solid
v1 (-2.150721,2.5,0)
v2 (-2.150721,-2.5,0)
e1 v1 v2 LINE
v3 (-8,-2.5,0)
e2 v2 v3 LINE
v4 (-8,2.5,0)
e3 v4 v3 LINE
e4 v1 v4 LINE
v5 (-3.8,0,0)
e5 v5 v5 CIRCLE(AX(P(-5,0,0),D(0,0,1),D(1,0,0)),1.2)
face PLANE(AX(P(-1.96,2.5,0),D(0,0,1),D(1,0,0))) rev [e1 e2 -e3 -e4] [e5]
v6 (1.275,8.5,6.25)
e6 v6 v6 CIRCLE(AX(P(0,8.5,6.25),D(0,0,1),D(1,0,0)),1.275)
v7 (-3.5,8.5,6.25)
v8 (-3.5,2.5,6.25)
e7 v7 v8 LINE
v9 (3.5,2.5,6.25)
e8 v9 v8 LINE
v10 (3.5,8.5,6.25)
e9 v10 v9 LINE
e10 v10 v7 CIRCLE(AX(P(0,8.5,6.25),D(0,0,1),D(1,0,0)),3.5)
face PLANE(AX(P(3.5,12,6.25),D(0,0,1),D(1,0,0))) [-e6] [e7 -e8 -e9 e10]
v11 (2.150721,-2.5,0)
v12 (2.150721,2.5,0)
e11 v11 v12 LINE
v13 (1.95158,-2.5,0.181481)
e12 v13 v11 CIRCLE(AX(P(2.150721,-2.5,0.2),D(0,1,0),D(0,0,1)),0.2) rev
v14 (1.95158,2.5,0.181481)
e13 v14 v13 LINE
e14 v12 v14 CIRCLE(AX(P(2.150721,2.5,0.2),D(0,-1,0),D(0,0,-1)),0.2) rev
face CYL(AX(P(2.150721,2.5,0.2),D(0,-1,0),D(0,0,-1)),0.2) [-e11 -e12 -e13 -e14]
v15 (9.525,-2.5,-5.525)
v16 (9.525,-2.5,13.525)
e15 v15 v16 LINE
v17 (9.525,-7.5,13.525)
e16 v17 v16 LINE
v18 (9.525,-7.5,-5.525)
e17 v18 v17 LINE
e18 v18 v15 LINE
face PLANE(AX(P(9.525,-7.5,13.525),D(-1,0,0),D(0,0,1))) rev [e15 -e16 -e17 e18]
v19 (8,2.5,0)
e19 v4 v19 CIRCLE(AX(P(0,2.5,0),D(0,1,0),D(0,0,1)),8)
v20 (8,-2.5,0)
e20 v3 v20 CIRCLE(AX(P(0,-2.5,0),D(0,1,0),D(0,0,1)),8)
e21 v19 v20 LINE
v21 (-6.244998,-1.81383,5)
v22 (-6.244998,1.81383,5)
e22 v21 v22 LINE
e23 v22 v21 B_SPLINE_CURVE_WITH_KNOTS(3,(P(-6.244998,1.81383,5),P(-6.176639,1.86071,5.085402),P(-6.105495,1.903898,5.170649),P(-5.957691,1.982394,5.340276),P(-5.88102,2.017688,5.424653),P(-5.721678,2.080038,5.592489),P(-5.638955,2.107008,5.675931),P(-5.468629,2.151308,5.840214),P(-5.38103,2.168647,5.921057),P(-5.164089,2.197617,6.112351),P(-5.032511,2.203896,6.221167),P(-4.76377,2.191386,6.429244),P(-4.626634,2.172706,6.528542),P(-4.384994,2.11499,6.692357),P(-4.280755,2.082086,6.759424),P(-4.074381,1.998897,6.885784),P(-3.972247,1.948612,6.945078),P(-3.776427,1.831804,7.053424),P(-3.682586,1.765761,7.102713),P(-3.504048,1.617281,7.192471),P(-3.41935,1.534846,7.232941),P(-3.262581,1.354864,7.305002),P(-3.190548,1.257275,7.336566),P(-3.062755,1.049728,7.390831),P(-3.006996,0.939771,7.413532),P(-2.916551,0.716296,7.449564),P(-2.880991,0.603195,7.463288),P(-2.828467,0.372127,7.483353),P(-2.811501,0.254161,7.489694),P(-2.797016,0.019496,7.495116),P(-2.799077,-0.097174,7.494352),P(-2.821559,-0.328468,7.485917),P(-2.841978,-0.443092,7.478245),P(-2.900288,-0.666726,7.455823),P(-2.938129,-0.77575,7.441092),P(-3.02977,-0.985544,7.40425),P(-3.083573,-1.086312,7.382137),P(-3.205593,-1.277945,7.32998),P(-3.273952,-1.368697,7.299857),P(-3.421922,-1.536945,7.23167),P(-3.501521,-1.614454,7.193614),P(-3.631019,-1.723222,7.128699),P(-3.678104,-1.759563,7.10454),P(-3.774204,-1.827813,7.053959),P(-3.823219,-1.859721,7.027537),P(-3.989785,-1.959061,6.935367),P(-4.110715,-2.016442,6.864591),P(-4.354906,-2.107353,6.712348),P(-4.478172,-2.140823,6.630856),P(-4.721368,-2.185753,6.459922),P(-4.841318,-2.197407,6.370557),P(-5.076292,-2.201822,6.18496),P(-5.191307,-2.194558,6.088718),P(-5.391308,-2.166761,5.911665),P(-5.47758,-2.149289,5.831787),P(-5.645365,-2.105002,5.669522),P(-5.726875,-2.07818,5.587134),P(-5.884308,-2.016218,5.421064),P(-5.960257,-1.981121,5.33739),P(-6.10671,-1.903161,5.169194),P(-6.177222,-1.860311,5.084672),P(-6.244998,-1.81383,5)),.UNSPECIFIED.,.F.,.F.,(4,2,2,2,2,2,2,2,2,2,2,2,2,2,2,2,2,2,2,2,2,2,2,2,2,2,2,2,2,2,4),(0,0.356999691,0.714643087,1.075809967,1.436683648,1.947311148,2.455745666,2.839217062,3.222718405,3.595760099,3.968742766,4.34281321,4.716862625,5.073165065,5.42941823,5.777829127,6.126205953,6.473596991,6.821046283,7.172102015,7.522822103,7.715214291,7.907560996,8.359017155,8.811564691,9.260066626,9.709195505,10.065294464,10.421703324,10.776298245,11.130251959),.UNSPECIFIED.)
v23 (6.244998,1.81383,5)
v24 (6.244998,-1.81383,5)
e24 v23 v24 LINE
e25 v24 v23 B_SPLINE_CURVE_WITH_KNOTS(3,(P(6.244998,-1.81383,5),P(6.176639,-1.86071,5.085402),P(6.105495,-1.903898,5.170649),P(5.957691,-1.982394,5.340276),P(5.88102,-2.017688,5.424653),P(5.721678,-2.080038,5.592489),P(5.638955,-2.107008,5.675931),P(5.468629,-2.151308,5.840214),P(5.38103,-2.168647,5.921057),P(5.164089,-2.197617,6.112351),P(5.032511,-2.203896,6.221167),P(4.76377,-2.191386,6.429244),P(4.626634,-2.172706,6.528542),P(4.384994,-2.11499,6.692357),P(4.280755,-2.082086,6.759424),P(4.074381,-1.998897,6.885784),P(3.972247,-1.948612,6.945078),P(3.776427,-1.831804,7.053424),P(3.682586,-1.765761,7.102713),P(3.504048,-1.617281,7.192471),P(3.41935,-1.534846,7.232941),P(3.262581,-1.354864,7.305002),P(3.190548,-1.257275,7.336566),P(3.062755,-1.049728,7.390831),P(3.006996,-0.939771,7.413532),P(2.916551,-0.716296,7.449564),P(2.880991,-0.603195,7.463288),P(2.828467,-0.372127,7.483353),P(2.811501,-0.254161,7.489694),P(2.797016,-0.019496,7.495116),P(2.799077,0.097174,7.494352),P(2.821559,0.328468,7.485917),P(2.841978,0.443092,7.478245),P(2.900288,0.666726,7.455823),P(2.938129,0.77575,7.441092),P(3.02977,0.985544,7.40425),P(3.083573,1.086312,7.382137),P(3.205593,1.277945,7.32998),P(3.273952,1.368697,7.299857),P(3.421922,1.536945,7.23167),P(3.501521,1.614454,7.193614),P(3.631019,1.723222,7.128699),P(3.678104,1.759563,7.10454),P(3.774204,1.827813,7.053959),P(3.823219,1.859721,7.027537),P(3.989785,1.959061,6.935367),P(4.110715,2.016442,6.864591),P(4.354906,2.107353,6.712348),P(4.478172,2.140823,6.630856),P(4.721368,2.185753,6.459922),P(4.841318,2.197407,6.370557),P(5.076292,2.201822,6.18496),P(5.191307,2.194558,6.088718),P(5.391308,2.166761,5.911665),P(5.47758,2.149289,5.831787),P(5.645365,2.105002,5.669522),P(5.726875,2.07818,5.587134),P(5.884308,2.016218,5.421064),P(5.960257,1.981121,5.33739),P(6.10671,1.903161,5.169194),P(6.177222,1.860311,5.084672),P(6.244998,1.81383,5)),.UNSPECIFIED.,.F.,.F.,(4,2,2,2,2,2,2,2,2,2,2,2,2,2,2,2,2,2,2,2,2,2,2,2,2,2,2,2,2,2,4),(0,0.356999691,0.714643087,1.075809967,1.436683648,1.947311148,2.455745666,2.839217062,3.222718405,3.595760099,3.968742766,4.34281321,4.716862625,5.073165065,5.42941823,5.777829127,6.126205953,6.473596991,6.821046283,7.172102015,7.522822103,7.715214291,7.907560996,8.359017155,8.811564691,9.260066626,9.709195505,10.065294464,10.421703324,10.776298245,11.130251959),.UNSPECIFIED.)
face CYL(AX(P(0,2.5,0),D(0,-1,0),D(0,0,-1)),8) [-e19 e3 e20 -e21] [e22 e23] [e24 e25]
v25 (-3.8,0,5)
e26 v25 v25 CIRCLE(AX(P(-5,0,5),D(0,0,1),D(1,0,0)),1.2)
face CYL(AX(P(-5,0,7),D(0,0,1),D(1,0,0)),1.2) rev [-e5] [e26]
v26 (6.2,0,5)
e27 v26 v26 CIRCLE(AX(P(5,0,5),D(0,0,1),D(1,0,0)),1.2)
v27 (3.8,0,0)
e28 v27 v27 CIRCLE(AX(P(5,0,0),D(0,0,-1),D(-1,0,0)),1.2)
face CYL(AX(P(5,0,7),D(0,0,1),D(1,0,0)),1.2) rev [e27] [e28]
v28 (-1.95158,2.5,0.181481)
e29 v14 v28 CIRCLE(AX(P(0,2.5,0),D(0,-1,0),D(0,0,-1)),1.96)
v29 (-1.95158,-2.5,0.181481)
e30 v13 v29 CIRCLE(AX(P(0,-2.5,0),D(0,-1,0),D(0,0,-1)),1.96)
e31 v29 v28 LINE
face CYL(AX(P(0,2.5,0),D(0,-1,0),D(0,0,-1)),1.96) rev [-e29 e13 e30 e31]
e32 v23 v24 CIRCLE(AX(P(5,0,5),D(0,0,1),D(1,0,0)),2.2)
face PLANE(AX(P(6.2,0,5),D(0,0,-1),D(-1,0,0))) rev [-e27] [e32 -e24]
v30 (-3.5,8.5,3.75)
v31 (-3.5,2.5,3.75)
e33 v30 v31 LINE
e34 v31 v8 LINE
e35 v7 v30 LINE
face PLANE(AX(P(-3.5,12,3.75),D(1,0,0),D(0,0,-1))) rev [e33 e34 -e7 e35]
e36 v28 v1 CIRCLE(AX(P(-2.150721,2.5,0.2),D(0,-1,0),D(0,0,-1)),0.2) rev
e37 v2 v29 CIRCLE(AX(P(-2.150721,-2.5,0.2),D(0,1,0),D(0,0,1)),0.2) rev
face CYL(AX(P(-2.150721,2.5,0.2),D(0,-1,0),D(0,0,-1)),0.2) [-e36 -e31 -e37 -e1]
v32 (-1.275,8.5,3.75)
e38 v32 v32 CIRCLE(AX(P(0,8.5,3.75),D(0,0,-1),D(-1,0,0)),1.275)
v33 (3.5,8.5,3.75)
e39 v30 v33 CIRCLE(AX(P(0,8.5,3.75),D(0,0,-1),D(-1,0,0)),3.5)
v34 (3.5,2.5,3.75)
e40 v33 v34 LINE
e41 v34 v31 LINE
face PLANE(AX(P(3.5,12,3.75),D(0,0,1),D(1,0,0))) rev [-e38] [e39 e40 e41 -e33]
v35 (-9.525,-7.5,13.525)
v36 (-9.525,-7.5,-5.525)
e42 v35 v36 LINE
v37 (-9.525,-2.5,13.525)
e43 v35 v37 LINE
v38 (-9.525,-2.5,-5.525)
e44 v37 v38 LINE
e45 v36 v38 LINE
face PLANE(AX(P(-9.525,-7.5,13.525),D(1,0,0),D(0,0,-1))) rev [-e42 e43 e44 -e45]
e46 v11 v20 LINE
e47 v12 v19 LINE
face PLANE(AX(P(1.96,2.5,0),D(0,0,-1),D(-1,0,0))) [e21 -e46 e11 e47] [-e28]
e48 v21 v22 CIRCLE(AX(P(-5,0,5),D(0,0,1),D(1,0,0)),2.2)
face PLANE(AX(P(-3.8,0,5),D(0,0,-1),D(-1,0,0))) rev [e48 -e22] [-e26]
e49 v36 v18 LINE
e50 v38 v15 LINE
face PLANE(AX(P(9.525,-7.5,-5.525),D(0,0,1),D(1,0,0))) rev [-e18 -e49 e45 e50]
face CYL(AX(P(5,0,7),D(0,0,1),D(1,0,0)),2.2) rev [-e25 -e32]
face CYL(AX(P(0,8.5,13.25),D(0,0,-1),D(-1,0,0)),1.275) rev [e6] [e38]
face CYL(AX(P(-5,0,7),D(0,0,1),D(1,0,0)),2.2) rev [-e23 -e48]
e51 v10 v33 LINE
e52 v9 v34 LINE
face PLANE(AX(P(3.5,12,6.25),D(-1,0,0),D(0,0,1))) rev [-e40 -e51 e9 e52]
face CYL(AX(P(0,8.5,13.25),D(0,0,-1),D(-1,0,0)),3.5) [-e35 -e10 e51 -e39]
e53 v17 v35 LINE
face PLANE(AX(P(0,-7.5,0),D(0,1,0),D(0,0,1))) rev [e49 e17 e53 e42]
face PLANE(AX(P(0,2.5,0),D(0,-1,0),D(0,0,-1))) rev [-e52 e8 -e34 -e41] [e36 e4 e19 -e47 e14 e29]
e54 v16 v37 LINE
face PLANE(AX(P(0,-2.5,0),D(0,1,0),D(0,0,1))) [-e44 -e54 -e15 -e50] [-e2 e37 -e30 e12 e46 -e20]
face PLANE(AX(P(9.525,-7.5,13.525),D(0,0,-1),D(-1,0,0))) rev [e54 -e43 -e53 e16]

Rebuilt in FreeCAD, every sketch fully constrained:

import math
import FreeCAD as App
import Part
import Sketcher


def edges_at(feature, points):
    """Names of the edges that pass closest to the given points."""
    edges = feature.Shape.Edges
    near = lambda p: min(range(len(edges)), key=lambda i: edges[i].distToShape(Part.Vertex(*p))[0])
    return sorted({f"Edge{near(p) + 1}" for p in points})

doc = App.newDocument("Part")
body = doc.addObject("PartDesign::Body", "Body")

# Sketch on XZ plane
sketch1 = body.newObject("Sketcher::SketchObject", "Sketch")
sketch1.AttachmentSupport = (doc.getObject("XZ_Plane"), [""])
sketch1.MapMode = "FlatFace"
sketch1.addGeometry([
    Part.LineSegment(App.Vector(8, 0, 0), App.Vector(1.96, 0, 0)),
    Part.ArcOfCircle(Part.Circle(App.Vector(0, 0, 0), App.Vector(0, 0, 1), 1.96), math.radians(0), math.radians(180)),
    Part.LineSegment(App.Vector(-1.96, 0, 0), App.Vector(-8, 0, 0)),
    Part.ArcOfCircle(Part.Circle(App.Vector(0, 0, 0), App.Vector(0, 0, 1), 8), math.radians(0), math.radians(180)),
], False)
sketch1.addConstraint([
    Sketcher.Constraint("Coincident", 0, 2, 1, 1),
    Sketcher.Constraint("Coincident", 1, 2, 2, 1),
    Sketcher.Constraint("Coincident", 2, 2, 3, 2),
    Sketcher.Constraint("Coincident", 3, 1, 0, 1),
    Sketcher.Constraint("Horizontal", 0),
    Sketcher.Constraint("Horizontal", 2),
    Sketcher.Constraint("Coincident", 1, 3, -1, 1),
    Sketcher.Constraint("Coincident", 3, 3, -1, 1),
    Sketcher.Constraint("PointOnObject", 0, 2, -1),
    Sketcher.Constraint("PointOnObject", 1, 2, -1),
    Sketcher.Constraint("Radius", 3, 8.0),
    Sketcher.Constraint("Radius", 1, 1.96),
])
pad1 = body.newObject("PartDesign::Pad", "Pad")
pad1.Profile = sketch1
pad1.Length = 5
pad1.Midplane = True

# Sketch on XZ plane
sketch2 = body.newObject("Sketcher::SketchObject", "Sketch001")
sketch2.AttachmentSupport = (doc.getObject("XZ_Plane"), [""])
sketch2.MapMode = "FlatFace"
sketch2.AttachmentOffset = App.Placement(App.Vector(0, 0, -2.5), App.Rotation())
sketch2.addGeometry([
    Part.LineSegment(App.Vector(-3.5, 3.75, 0), App.Vector(-3.5, 6.25, 0)),
    Part.LineSegment(App.Vector(-3.5, 6.25, 0), App.Vector(3.5, 6.25, 0)),
    Part.LineSegment(App.Vector(3.5, 6.25, 0), App.Vector(3.5, 3.75, 0)),
    Part.LineSegment(App.Vector(3.5, 3.75, 0), App.Vector(-3.5, 3.75, 0)),
], False)
sketch2.addConstraint([
    Sketcher.Constraint("Coincident", 0, 2, 1, 1),
    Sketcher.Constraint("Coincident", 1, 2, 2, 1),
    Sketcher.Constraint("Coincident", 2, 2, 3, 1),
    Sketcher.Constraint("Coincident", 3, 2, 0, 1),
    Sketcher.Constraint("Vertical", 0),
    Sketcher.Constraint("Horizontal", 1),
    Sketcher.Constraint("Vertical", 2),
    Sketcher.Constraint("Horizontal", 3),
    Sketcher.Constraint("DistanceX", 1, 1, 1, 2, 7.0),
    Sketcher.Constraint("DistanceY", 0, 1, 0, 2, 2.5),
    Sketcher.Constraint("DistanceX", 0, 2, -1, 1, 3.5),
    Sketcher.Constraint("DistanceY", -1, 1, 0, 2, 6.25),
])
pad2 = body.newObject("PartDesign::Pad", "Pad001")
pad2.Profile = sketch2
pad2.Length = 9.5
pad2.Reversed = True

# Sketch on XY plane
sketch3 = body.newObject("Sketcher::SketchObject", "Sketch002")
sketch3.AttachmentSupport = (doc.getObject("XY_Plane"), [""])
sketch3.MapMode = "FlatFace"
sketch3.AttachmentOffset = App.Placement(App.Vector(0, 0, 3.75), App.Rotation())
sketch3.addGeometry([
    Part.LineSegment(App.Vector(3.5, 14.88636, 0), App.Vector(3.5, 8.5, 0)),  # 0
    Part.ArcOfCircle(Part.Circle(App.Vector(0, 8.5, 0), App.Vector(0, 0, 1), 3.5), math.radians(0), math.radians(180)),  # 1
    Part.LineSegment(App.Vector(-3.5, 8.5, 0), App.Vector(-3.5, 14.5, 0)),  # 2
    Part.LineSegment(App.Vector(-3.5, 14.5, 0), App.Vector(0, 16.809202, 0)),  # 3
    Part.LineSegment(App.Vector(0, 16.809202, 0), App.Vector(3.5, 14.88636, 0)),  # 4
], False)
sketch3.addConstraint([
    Sketcher.Constraint("Tangent", 0, 2, 1, 1),
    Sketcher.Constraint("Tangent", 1, 2, 2, 1),
    Sketcher.Constraint("Coincident", 2, 2, 3, 1),
    Sketcher.Constraint("Coincident", 3, 2, 4, 1),
    Sketcher.Constraint("Coincident", 4, 2, 0, 1),
    Sketcher.Constraint("Vertical", 0),
    Sketcher.Constraint("Vertical", 2),
    Sketcher.Constraint("PointOnObject", 1, 3, -2),
    Sketcher.Constraint("PointOnObject", 3, 2, -2),
    Sketcher.Constraint("Radius", 1, 3.5),
    Sketcher.Constraint("DistanceY", 2, 1, 2, 2, 6.0),
    Sketcher.Constraint("DistanceY", -1, 1, 1, 3, 8.5),
    Sketcher.Constraint("DistanceY", 0, 2, 0, 1, 6.38636),
    Sketcher.Constraint("DistanceY", -1, 1, 3, 2, 16.809202),
])
pocket1 = body.newObject("PartDesign::Pocket", "Pocket")
pocket1.Profile = sketch3
pocket1.Length = 9.5
pocket1.Reversed = True

# Sketch on XY plane
sketch4 = body.newObject("Sketcher::SketchObject", "Sketch003")
sketch4.AttachmentSupport = (doc.getObject("XY_Plane"), [""])
sketch4.MapMode = "FlatFace"
sketch4.AttachmentOffset = App.Placement(App.Vector(0, 0, 3.75), App.Rotation())
sketch4.addGeometry(Part.Circle(App.Vector(0, 8.5, 0), App.Vector(0, 0, 1), 1.275), False)
sketch4.addConstraint([
    Sketcher.Constraint("PointOnObject", 0, 3, -2),
    Sketcher.Constraint("Diameter", 0, 2.55),
    Sketcher.Constraint("DistanceY", -1, 1, 0, 3, 8.5),
])
pocket2 = body.newObject("PartDesign::Pocket", "Pocket001")
pocket2.Profile = sketch4
pocket2.Length = 9.5
pocket2.Reversed = True

# Sketch on YZ plane
sketch5 = body.newObject("Sketcher::SketchObject", "Sketch004")
sketch5.AttachmentSupport = (doc.getObject("YZ_Plane"), [""])
sketch5.MapMode = "FlatFace"
sketch5.AttachmentOffset = App.Placement(App.Vector(0, 0, 5), App.Rotation())
sketch5.addGeometry([
    Part.LineSegment(App.Vector(0, 0, 0), App.Vector(0, 7, 0)),  # 0
    Part.LineSegment(App.Vector(0, 7, 0), App.Vector(-2.2, 7, 0)),  # 1
    Part.LineSegment(App.Vector(-2.2, 7, 0), App.Vector(-2.2, 5, 0)),  # 2
    Part.LineSegment(App.Vector(-2.2, 5, 0), App.Vector(-1.2, 5, 0)),  # 3
    Part.LineSegment(App.Vector(-1.2, 5, 0), App.Vector(-1.2, 0, 0)),  # 4
    Part.LineSegment(App.Vector(-1.2, 0, 0), App.Vector(0, 0, 0)),  # 5
], False)
sketch5.addConstraint([
    Sketcher.Constraint("Coincident", 0, 2, 1, 1),
    Sketcher.Constraint("Coincident", 1, 2, 2, 1),
    Sketcher.Constraint("Coincident", 2, 2, 3, 1),
    Sketcher.Constraint("Coincident", 3, 2, 4, 1),
    Sketcher.Constraint("Coincident", 4, 2, 5, 1),
    Sketcher.Constraint("Coincident", 5, 2, 0, 1),
    Sketcher.Constraint("Vertical", 0),
    Sketcher.Constraint("Horizontal", 1),
    Sketcher.Constraint("Vertical", 2),
    Sketcher.Constraint("Horizontal", 3),
    Sketcher.Constraint("Vertical", 4),
    Sketcher.Constraint("Horizontal", 5),
    Sketcher.Constraint("Coincident", 5, 2, -1, 1),
    Sketcher.Constraint("DistanceX", 3, 1, 3, 2, 1.0),
    Sketcher.Constraint("DistanceY", 0, 1, 0, 2, 7.0),
    Sketcher.Constraint("DistanceY", 2, 2, 2, 1, 2.0),
    Sketcher.Constraint("DistanceX", 1, 2, 1, 1, 2.2),
])
groove = body.newObject("PartDesign::Groove", "Groove")
groove.Profile = sketch5
groove.ReferenceAxis = (sketch5, ["V_Axis"])
groove.Angle = 360
doc.recompute()

linearpattern = body.newObject("PartDesign::LinearPattern", "LinearPattern")
linearpattern.Originals = [groove]
linearpattern.Direction = (doc.getObject("X_Axis"), [""])
linearpattern.Mode = "offset"
linearpattern.Offset = 10
linearpattern.Occurrences = 2
linearpattern.Reversed = True
body.Tip = linearpattern

# Sketch on XY plane
sketch6 = body.newObject("Sketcher::SketchObject", "Sketch005")
sketch6.AttachmentSupport = (doc.getObject("XY_Plane"), [""])
sketch6.MapMode = "FlatFace"
sketch6.AttachmentOffset = App.Placement(App.Vector(0, 0, 7), App.Rotation())
sketch6.addGeometry([
    Part.Circle(App.Vector(5, 0, 0), App.Vector(0, 0, 1), 2.2),
    Part.Circle(App.Vector(-5, 0, 0), App.Vector(0, 0, 1), 2.2),
], False)
sketch6.addConstraint([
    Sketcher.Constraint("Equal", 0, 1),
    Sketcher.Constraint("Symmetric", 0, 3, 1, 3, -1, 1),
    Sketcher.Constraint("PointOnObject", 0, 3, -1),
    Sketcher.Constraint("Diameter", 0, 4.4),
    Sketcher.Constraint("DistanceX", -1, 1, 0, 3, 5.0),
])
pocket3 = body.newObject("PartDesign::Pocket", "Pocket002")
pocket3.Profile = sketch6
pocket3.Length = 9.5
pocket3.Reversed = True

# Sketch on XZ plane
sketch7 = body.newObject("Sketcher::SketchObject", "Sketch006")
sketch7.AttachmentSupport = (doc.getObject("XZ_Plane"), [""])
sketch7.MapMode = "FlatFace"
sketch7.AttachmentOffset = App.Placement(App.Vector(0, 0, 2.5), App.Rotation())
sketch7.addGeometry([
    Part.LineSegment(App.Vector(-9.525, 13.525, 0), App.Vector(-9.525, -5.525, 0)),
    Part.LineSegment(App.Vector(-9.525, -5.525, 0), App.Vector(9.525, -5.525, 0)),
    Part.LineSegment(App.Vector(9.525, -5.525, 0), App.Vector(9.525, 13.525, 0)),
    Part.LineSegment(App.Vector(9.525, 13.525, 0), App.Vector(-9.525, 13.525, 0)),
], False)
sketch7.addConstraint([
    Sketcher.Constraint("Coincident", 0, 2, 1, 1),
    Sketcher.Constraint("Coincident", 1, 2, 2, 1),
    Sketcher.Constraint("Coincident", 2, 2, 3, 1),
    Sketcher.Constraint("Coincident", 3, 2, 0, 1),
    Sketcher.Constraint("Vertical", 0),
    Sketcher.Constraint("Horizontal", 1),
    Sketcher.Constraint("Vertical", 2),
    Sketcher.Constraint("Horizontal", 3),
    Sketcher.Constraint("Equal", 3, 0),
    Sketcher.Constraint("DistanceX", 1, 1, 1, 2, 19.05),
    Sketcher.Constraint("DistanceX", 0, 2, -1, 1, 9.525),
    Sketcher.Constraint("DistanceY", 0, 2, -1, 1, 5.525),
])
pad3 = body.newObject("PartDesign::Pad", "Pad002")
pad3.Profile = sketch7
pad3.Length = 5
doc.recompute()

fillet = body.newObject("PartDesign::Fillet", "Fillet")
fillet.Base = (pad3, edges_at(pad3, [(1.96, 0, 0), (-1.96, 0, 0)]))
fillet.Radius = 0.2

doc.recompute()
